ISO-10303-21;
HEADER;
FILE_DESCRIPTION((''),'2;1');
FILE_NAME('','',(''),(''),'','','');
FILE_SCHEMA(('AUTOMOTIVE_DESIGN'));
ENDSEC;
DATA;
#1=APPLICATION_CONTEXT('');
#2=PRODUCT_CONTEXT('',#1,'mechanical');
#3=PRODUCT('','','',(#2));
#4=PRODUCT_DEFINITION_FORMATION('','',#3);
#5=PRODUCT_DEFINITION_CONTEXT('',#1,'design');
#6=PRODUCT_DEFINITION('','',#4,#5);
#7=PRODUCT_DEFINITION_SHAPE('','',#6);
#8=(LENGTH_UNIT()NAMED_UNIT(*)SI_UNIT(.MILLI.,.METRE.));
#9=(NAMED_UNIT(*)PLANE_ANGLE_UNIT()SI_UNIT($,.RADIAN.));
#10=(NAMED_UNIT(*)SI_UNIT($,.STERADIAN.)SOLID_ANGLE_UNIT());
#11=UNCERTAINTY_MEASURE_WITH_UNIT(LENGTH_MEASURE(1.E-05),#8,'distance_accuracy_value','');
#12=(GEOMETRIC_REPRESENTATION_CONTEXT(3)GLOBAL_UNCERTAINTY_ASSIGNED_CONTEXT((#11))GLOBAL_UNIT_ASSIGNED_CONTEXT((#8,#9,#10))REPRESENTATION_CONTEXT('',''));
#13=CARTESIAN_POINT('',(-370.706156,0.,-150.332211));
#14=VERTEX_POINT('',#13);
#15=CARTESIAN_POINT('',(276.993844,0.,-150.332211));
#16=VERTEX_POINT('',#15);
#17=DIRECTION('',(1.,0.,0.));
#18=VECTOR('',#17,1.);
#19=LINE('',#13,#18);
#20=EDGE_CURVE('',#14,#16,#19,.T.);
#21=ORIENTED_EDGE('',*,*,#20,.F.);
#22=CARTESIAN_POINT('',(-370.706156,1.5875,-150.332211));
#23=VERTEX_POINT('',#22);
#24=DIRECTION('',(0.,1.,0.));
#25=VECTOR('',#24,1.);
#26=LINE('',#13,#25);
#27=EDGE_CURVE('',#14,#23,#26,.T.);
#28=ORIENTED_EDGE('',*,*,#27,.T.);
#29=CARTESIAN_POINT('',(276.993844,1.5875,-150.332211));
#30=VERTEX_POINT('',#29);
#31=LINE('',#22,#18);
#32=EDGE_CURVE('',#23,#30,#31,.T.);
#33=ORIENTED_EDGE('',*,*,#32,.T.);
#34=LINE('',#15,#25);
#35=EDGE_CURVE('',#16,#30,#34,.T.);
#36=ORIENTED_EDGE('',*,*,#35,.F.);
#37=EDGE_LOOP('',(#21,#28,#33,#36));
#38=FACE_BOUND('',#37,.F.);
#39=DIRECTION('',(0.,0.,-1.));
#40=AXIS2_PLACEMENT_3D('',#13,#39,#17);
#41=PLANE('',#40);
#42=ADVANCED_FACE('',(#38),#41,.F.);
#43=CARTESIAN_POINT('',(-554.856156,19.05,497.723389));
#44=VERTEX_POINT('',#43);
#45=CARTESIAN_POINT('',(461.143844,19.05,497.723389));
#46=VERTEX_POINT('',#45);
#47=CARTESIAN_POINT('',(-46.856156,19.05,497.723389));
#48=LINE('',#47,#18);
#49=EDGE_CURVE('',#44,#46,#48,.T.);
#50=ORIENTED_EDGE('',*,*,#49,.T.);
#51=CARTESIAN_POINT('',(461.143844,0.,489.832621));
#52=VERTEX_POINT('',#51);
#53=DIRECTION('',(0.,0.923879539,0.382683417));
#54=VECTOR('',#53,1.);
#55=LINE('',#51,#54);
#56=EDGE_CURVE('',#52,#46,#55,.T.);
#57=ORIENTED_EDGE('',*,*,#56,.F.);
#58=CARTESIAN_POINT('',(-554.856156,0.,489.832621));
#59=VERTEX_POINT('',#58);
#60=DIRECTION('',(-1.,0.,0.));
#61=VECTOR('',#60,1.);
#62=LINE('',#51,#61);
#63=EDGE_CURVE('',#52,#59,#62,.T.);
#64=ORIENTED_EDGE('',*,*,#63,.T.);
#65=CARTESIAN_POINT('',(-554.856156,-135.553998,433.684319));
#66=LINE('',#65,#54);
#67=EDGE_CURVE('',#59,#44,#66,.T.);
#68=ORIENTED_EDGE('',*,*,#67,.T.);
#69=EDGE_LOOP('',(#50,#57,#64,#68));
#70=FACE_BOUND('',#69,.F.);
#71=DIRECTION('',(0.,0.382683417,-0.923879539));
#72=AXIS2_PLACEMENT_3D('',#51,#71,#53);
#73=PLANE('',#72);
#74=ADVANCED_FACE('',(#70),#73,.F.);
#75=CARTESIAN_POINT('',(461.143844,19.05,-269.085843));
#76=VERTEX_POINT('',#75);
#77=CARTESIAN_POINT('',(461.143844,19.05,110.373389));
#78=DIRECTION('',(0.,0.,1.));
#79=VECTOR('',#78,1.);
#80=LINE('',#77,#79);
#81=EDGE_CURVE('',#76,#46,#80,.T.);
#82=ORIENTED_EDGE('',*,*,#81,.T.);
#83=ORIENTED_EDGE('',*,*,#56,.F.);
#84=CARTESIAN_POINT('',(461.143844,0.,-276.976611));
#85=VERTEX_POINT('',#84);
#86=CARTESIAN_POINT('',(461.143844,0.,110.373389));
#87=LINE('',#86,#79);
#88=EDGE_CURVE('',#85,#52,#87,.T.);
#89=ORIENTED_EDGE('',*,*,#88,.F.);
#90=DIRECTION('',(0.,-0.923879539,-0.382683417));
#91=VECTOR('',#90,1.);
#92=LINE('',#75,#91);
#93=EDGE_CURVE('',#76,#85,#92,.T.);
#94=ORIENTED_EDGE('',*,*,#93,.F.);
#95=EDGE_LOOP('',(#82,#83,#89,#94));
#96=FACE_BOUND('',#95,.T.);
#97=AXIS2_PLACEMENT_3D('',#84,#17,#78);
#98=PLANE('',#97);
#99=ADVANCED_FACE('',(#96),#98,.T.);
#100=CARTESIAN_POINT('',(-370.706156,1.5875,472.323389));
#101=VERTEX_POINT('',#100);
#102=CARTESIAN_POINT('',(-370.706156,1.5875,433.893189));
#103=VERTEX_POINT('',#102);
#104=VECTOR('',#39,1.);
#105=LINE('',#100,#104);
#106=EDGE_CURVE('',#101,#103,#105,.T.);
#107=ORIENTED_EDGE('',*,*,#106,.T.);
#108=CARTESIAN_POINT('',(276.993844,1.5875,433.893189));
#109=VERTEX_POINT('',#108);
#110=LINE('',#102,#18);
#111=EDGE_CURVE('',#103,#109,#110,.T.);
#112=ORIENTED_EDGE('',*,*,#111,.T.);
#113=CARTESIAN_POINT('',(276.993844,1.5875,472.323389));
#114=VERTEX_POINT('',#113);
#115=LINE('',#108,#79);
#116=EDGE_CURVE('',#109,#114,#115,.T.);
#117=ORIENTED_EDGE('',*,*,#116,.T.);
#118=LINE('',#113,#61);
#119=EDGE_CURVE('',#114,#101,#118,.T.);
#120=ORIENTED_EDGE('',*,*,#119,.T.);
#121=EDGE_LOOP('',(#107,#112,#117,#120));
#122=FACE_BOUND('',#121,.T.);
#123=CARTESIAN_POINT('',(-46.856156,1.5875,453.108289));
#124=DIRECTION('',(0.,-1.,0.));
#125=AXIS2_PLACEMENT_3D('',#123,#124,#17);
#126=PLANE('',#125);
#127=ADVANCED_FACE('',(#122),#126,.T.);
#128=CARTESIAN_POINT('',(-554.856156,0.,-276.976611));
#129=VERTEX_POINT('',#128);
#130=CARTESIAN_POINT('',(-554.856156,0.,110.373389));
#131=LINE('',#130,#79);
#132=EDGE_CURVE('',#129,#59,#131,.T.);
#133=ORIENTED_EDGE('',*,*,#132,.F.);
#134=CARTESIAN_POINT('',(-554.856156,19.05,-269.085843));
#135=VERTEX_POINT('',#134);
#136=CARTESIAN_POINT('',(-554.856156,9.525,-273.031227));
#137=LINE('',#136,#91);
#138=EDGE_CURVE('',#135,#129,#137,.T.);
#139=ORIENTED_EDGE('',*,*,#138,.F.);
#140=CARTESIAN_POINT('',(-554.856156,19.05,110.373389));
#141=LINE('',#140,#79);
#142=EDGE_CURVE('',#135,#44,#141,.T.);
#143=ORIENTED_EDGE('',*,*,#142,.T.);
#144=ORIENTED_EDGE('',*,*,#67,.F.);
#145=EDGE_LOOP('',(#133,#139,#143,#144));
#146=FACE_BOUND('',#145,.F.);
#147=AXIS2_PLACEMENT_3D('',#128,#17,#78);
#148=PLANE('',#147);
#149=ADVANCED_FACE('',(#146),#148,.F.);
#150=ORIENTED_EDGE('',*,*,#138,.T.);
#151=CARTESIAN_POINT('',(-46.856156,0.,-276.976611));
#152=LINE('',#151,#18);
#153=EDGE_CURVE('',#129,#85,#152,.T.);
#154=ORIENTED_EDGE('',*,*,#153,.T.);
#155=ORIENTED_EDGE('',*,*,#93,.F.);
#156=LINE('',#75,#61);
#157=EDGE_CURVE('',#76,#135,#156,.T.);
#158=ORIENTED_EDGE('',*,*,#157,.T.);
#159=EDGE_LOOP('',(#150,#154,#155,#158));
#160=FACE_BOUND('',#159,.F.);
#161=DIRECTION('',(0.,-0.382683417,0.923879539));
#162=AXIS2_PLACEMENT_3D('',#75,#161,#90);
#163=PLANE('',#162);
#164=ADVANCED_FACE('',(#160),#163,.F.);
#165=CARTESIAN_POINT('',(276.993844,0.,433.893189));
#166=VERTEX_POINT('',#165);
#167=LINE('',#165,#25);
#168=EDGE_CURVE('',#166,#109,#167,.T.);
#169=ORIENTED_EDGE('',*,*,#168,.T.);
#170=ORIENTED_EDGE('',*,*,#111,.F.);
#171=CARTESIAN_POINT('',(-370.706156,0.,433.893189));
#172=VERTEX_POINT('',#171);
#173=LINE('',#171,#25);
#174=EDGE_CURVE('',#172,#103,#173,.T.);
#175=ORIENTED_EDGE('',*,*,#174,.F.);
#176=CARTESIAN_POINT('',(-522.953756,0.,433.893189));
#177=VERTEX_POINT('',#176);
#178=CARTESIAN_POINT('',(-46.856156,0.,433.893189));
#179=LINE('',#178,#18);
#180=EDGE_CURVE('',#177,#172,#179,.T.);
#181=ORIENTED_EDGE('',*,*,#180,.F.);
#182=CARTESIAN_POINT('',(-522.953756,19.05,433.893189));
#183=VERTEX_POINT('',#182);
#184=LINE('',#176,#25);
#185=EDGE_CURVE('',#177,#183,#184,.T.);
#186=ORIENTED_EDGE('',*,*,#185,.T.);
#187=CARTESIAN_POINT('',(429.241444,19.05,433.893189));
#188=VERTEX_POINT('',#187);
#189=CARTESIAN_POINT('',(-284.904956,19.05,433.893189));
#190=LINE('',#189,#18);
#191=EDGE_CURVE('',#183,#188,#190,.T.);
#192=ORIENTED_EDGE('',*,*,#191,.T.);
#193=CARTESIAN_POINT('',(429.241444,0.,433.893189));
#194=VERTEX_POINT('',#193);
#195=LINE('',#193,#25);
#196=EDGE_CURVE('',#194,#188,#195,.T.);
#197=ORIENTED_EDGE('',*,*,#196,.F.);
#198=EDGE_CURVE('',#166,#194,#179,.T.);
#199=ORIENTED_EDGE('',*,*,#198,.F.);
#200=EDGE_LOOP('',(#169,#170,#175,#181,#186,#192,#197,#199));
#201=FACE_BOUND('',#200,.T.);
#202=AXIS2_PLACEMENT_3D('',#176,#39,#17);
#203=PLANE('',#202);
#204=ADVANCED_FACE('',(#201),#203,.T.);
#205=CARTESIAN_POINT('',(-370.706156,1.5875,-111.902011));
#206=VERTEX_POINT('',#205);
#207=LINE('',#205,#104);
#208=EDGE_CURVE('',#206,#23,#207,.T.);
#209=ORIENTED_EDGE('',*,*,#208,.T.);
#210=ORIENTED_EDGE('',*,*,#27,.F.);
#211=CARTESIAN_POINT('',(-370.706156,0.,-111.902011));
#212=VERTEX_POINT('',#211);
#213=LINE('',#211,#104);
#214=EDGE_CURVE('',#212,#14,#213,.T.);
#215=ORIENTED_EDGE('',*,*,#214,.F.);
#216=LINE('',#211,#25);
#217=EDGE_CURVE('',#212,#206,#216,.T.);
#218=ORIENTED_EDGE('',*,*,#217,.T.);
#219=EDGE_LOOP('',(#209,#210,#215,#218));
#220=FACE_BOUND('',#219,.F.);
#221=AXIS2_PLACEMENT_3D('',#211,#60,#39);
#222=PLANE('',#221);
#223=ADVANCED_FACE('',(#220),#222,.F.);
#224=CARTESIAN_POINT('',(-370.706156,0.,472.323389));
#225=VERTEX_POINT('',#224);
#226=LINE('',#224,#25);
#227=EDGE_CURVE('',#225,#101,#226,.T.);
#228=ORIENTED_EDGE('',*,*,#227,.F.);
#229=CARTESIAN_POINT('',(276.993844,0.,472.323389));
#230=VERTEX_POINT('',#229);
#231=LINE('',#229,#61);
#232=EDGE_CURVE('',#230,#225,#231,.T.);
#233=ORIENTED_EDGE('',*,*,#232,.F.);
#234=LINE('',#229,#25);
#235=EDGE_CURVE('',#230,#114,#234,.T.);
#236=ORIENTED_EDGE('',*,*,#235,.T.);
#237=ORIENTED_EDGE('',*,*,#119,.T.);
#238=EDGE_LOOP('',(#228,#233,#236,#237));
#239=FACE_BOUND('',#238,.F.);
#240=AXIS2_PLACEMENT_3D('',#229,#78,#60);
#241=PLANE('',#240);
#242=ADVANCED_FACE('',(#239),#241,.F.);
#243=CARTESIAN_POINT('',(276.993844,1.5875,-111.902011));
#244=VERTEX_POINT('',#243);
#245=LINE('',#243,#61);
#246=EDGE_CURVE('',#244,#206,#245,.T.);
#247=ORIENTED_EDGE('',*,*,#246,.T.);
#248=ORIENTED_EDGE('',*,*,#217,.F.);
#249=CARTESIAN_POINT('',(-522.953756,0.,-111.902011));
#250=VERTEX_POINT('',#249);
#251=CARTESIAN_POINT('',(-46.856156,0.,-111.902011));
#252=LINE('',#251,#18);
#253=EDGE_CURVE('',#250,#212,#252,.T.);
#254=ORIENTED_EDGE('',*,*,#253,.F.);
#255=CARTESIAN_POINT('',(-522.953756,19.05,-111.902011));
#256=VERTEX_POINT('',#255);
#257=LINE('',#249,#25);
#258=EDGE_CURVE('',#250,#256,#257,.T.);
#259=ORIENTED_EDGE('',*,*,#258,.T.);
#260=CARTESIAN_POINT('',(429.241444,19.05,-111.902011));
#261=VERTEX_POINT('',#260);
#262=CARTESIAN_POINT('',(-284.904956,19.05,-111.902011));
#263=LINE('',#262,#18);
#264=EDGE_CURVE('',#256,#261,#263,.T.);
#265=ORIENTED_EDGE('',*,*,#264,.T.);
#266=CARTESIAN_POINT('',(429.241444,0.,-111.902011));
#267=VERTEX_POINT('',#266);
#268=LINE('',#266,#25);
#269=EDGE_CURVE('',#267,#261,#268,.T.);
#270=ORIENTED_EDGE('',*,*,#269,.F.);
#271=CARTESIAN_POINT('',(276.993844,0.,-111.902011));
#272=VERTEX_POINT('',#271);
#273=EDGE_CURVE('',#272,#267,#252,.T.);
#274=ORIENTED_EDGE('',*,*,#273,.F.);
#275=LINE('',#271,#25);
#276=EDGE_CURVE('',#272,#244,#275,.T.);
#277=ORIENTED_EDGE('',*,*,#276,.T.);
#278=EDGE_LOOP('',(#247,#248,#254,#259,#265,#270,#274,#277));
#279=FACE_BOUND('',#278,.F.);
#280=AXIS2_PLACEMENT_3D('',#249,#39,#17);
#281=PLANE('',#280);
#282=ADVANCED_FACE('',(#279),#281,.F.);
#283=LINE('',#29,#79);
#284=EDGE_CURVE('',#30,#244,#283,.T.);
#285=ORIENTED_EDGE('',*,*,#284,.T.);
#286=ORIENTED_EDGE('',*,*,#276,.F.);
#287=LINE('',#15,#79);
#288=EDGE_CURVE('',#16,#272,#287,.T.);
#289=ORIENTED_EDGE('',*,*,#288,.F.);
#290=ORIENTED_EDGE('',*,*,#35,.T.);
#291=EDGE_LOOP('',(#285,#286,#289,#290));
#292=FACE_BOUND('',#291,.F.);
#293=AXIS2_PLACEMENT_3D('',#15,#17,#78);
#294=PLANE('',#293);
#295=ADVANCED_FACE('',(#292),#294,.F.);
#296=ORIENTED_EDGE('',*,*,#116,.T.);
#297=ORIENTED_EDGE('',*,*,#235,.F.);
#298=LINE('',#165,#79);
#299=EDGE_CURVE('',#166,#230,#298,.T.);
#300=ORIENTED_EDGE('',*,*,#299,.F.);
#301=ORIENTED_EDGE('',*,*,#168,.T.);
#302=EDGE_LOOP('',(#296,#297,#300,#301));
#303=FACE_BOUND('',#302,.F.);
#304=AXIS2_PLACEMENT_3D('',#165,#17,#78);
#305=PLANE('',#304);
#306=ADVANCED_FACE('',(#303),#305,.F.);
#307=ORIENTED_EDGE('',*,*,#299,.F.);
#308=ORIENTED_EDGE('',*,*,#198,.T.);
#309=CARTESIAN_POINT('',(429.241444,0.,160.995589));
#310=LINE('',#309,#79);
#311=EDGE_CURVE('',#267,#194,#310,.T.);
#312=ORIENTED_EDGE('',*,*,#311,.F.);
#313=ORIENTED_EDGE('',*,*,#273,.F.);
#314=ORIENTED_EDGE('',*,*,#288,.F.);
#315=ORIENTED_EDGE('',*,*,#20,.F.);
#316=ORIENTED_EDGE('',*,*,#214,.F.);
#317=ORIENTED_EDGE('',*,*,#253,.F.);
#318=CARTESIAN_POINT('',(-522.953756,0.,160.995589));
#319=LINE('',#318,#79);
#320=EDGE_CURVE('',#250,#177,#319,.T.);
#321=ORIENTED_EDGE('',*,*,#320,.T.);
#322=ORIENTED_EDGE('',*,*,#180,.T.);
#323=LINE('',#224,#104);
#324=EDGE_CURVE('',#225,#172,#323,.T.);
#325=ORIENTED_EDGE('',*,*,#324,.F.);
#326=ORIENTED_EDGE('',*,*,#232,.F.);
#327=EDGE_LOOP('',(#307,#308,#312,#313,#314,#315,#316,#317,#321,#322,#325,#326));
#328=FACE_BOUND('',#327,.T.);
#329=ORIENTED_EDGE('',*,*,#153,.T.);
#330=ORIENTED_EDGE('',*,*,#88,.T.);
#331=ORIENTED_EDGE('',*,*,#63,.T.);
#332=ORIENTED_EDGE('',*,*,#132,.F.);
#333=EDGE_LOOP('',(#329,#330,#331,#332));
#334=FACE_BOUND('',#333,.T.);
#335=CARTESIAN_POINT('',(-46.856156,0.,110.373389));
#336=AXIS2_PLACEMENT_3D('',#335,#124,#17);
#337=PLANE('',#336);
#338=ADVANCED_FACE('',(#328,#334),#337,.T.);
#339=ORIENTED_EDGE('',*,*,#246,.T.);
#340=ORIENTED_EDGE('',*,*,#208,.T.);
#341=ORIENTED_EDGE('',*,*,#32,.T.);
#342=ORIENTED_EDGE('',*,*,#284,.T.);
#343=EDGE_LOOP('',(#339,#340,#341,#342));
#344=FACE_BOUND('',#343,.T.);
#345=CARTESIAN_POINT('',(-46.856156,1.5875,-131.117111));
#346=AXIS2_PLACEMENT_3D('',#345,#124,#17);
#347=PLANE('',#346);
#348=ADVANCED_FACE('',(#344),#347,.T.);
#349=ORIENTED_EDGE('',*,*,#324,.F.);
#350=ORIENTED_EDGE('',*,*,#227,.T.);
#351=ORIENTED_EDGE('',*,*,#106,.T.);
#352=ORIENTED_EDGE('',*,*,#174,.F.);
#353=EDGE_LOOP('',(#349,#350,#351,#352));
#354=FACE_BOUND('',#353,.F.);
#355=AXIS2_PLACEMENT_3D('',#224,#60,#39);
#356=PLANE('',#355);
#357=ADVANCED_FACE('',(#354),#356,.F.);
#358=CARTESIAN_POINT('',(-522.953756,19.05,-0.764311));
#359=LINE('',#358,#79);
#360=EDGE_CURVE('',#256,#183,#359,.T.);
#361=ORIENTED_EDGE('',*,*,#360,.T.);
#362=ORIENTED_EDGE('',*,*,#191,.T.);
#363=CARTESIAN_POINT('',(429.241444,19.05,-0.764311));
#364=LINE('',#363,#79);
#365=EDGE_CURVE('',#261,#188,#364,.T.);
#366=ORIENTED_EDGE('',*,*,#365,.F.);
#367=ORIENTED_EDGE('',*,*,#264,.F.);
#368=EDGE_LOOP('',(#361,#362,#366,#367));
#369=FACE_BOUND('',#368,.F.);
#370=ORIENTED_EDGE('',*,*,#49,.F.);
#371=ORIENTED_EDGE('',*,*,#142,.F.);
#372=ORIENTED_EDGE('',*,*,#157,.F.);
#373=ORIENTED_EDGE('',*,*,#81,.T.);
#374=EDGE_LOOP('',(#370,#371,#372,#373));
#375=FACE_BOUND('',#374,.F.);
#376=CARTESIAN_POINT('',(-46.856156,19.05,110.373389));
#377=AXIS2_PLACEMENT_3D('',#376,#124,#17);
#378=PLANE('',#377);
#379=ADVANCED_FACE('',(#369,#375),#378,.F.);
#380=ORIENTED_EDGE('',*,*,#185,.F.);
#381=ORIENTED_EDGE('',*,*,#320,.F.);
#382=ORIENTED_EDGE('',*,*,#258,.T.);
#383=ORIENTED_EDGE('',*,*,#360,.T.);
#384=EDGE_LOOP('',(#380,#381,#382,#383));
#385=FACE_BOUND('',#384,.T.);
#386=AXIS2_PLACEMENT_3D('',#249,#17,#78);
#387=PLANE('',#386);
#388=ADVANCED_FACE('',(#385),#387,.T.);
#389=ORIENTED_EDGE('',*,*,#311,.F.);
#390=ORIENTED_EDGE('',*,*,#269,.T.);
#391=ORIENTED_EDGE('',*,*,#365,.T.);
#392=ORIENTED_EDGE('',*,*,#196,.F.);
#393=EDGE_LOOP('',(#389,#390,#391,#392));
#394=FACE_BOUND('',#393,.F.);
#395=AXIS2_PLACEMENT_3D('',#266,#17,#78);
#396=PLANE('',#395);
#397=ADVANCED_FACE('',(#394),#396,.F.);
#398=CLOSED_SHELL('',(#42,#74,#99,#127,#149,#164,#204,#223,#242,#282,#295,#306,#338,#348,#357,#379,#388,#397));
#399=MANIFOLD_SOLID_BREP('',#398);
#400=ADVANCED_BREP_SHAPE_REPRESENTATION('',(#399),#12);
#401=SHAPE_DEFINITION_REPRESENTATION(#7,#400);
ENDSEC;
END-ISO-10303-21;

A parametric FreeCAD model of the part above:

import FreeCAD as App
import Part
import Sketcher
Q = App.Units.Quantity


def add_polygon(sketch, points):
    """Adds a closed chain of lines whose ends are joined by coincident constraints."""
    first, n = sketch.GeometryCount, len(points)
    for a, b in zip(points, points[1:] + points[:1]):
        sketch.addGeometry(Part.LineSegment(App.Vector(*a, 0), App.Vector(*b, 0)), False)
    for i in range(n):
        sketch.addConstraint(Sketcher.Constraint("Coincident", first + i, 2, first + (i + 1) % n, 1))

doc = App.newDocument("Part")
body = doc.addObject("PartDesign::Body", "Body")

sketch1 = doc.addObject("Sketcher::SketchObject", "Sketch")
body.addObject(sketch1)
sketch1.AttachmentSupport = (doc.XZ_Plane, [""])
sketch1.MapMode = "FlatFace"
add_polygon(sketch1, [(-554.856156, 497.723389), (-554.856156, -276.976611), (461.143844, -276.976611), (461.143844, 497.723389)])
sketch1.addConstraint([
    Sketcher.Constraint("Vertical", 0),
    Sketcher.Constraint("Horizontal", 1),
    Sketcher.Constraint("Vertical", 2),
    Sketcher.Constraint("Horizontal", 3),
    Sketcher.Constraint("DistanceX", 1, 1, 1, 2, Q("40 in")),
    Sketcher.Constraint("DistanceY", 0, 2, 0, 1, Q("30.5 in")),
    Sketcher.Constraint("DistanceY", 0, 2, -1, 1, 276.976611),
    Sketcher.Constraint("DistanceX", 0, 2, -1, 1, 554.856156),
])
pad1 = doc.addObject("PartDesign::Pad", "Pad")
body.addObject(pad1)
pad1.Profile = sketch1
pad1.Length = Q("0.75 in")
pad1.Reversed = True

sketch2 = doc.addObject("Sketcher::SketchObject", "Sketch001")
body.addObject(sketch2)
sketch2.AttachmentSupport = (doc.YZ_Plane, [""])
sketch2.MapMode = "FlatFace"
sketch2.AttachmentOffset = App.Placement(App.Vector(0, 0, 461.143844), App.Rotation())
add_polygon(sketch2, [(19.05, -269.085843), (0, -276.976611), (19.05, -276.976611)])
sketch2.addConstraint([
    Sketcher.Constraint("Horizontal", 1),
    Sketcher.Constraint("Vertical", 2),
    Sketcher.Constraint("PointOnObject", 0, 2, -2),
    Sketcher.Constraint("DistanceX", 1, 1, 1, 2, Q("0.75 in")),
    Sketcher.Constraint("Angle", 0, Q("-157.500001 deg")),
    Sketcher.Constraint("DistanceY", 0, 2, -1, 1, 276.976611),
])
pocket1 = doc.addObject("PartDesign::Pocket", "Pocket")
body.addObject(pocket1)
pocket1.Profile = sketch2
pocket1.Type = "ThroughAll"

sketch3 = doc.addObject("Sketcher::SketchObject", "Sketch002")
body.addObject(sketch3)
sketch3.AttachmentSupport = (doc.XZ_Plane, [""])
sketch3.MapMode = "FlatFace"
add_polygon(sketch3, [(-522.953756, 433.893189), (-522.953756, -111.902011), (429.241444, -111.902011), (429.241444, 433.893189)])
sketch3.addConstraint([
    Sketcher.Constraint("Vertical", 0),
    Sketcher.Constraint("Horizontal", 1),
    Sketcher.Constraint("Vertical", 2),
    Sketcher.Constraint("Horizontal", 3),
    Sketcher.Constraint("DistanceX", 1, 1, 1, 2, Q("37.488 in")),
    Sketcher.Constraint("DistanceY", 0, 2, 0, 1, Q("21.488 in")),
    Sketcher.Constraint("DistanceY", 0, 2, -1, 1, 111.902011),
    Sketcher.Constraint("DistanceX", 0, 2, -1, 1, 522.953756),
])
pocket2 = doc.addObject("PartDesign::Pocket", "Pocket001")
body.addObject(pocket2)
pocket2.Profile = sketch3
pocket2.Type = "ThroughAll"

sketch4 = doc.addObject("Sketcher::SketchObject", "Sketch003")
body.addObject(sketch4)
sketch4.AttachmentSupport = (doc.XZ_Plane, [""])
sketch4.MapMode = "FlatFace"
add_polygon(sketch4, [(276.993844, 472.323389), (-370.706156, 472.323389), (-370.706156, 433.893189), (276.993844, 433.893189)])
add_polygon(sketch4, [(276.993844, -111.902011), (-370.706156, -111.902011), (-370.706156, -150.332211), (276.993844, -150.332211)])
sketch4.addConstraint([
    Sketcher.Constraint("Horizontal", 0),
    Sketcher.Constraint("Vertical", 1),
    Sketcher.Constraint("Horizontal", 2),
    Sketcher.Constraint("Vertical", 3),
    Sketcher.Constraint("Horizontal", 4),
    Sketcher.Constraint("Vertical", 5),
    Sketcher.Constraint("Horizontal", 6),
    Sketcher.Constraint("Vertical", 7),
    Sketcher.Constraint("Vertical", 1, 2, 4, 2),
    Sketcher.Constraint("Vertical", 3, 2, 6, 2),
    Sketcher.Constraint("Equal", 3, 5),
    Sketcher.Constraint("DistanceX", 0, 2, 0, 1, Q("25.5 in")),
    Sketcher.Constraint("DistanceY", 1, 2, 1, 1, Q("1.513 in")),
    Sketcher.Constraint("DistanceY", 4, 2, 1, 2, Q("21.488 in")),
    Sketcher.Constraint("DistanceY", -1, 1, 0, 2, 472.323389),
    Sketcher.Constraint("DistanceX", 0, 2, -1, 1, 370.706156),
])
pocket3 = doc.addObject("PartDesign::Pocket", "Pocket002")
body.addObject(pocket3)
pocket3.Profile = sketch4
pocket3.Length = Q("0.0625 in")

sketch5 = doc.addObject("Sketcher::SketchObject", "Sketch004")
body.addObject(sketch5)
sketch5.AttachmentSupport = (doc.YZ_Plane, [""])
sketch5.MapMode = "FlatFace"
sketch5.AttachmentOffset = App.Placement(App.Vector(0, 0, 461.143844), App.Rotation())
add_polygon(sketch5, [(19.05, 497.723389), (0, 497.723389), (0, 489.832621)])
sketch5.addConstraint([
    Sketcher.Constraint("Horizontal", 0),
    Sketcher.Constraint("Vertical", 1),
    Sketcher.Constraint("PointOnObject", 0, 2, -2),
    Sketcher.Constraint("DistanceX", 0, 2, 0, 1, Q("0.75 in")),
    Sketcher.Constraint("Angle", 2, Q("22.499999 deg")),
    Sketcher.Constraint("DistanceY", -1, 1, 0, 2, 497.723389),
])
pocket4 = doc.addObject("PartDesign::Pocket", "Pocket003")
body.addObject(pocket4)
pocket4.Profile = sketch5
pocket4.Type = "ThroughAll"

doc.recompute()
